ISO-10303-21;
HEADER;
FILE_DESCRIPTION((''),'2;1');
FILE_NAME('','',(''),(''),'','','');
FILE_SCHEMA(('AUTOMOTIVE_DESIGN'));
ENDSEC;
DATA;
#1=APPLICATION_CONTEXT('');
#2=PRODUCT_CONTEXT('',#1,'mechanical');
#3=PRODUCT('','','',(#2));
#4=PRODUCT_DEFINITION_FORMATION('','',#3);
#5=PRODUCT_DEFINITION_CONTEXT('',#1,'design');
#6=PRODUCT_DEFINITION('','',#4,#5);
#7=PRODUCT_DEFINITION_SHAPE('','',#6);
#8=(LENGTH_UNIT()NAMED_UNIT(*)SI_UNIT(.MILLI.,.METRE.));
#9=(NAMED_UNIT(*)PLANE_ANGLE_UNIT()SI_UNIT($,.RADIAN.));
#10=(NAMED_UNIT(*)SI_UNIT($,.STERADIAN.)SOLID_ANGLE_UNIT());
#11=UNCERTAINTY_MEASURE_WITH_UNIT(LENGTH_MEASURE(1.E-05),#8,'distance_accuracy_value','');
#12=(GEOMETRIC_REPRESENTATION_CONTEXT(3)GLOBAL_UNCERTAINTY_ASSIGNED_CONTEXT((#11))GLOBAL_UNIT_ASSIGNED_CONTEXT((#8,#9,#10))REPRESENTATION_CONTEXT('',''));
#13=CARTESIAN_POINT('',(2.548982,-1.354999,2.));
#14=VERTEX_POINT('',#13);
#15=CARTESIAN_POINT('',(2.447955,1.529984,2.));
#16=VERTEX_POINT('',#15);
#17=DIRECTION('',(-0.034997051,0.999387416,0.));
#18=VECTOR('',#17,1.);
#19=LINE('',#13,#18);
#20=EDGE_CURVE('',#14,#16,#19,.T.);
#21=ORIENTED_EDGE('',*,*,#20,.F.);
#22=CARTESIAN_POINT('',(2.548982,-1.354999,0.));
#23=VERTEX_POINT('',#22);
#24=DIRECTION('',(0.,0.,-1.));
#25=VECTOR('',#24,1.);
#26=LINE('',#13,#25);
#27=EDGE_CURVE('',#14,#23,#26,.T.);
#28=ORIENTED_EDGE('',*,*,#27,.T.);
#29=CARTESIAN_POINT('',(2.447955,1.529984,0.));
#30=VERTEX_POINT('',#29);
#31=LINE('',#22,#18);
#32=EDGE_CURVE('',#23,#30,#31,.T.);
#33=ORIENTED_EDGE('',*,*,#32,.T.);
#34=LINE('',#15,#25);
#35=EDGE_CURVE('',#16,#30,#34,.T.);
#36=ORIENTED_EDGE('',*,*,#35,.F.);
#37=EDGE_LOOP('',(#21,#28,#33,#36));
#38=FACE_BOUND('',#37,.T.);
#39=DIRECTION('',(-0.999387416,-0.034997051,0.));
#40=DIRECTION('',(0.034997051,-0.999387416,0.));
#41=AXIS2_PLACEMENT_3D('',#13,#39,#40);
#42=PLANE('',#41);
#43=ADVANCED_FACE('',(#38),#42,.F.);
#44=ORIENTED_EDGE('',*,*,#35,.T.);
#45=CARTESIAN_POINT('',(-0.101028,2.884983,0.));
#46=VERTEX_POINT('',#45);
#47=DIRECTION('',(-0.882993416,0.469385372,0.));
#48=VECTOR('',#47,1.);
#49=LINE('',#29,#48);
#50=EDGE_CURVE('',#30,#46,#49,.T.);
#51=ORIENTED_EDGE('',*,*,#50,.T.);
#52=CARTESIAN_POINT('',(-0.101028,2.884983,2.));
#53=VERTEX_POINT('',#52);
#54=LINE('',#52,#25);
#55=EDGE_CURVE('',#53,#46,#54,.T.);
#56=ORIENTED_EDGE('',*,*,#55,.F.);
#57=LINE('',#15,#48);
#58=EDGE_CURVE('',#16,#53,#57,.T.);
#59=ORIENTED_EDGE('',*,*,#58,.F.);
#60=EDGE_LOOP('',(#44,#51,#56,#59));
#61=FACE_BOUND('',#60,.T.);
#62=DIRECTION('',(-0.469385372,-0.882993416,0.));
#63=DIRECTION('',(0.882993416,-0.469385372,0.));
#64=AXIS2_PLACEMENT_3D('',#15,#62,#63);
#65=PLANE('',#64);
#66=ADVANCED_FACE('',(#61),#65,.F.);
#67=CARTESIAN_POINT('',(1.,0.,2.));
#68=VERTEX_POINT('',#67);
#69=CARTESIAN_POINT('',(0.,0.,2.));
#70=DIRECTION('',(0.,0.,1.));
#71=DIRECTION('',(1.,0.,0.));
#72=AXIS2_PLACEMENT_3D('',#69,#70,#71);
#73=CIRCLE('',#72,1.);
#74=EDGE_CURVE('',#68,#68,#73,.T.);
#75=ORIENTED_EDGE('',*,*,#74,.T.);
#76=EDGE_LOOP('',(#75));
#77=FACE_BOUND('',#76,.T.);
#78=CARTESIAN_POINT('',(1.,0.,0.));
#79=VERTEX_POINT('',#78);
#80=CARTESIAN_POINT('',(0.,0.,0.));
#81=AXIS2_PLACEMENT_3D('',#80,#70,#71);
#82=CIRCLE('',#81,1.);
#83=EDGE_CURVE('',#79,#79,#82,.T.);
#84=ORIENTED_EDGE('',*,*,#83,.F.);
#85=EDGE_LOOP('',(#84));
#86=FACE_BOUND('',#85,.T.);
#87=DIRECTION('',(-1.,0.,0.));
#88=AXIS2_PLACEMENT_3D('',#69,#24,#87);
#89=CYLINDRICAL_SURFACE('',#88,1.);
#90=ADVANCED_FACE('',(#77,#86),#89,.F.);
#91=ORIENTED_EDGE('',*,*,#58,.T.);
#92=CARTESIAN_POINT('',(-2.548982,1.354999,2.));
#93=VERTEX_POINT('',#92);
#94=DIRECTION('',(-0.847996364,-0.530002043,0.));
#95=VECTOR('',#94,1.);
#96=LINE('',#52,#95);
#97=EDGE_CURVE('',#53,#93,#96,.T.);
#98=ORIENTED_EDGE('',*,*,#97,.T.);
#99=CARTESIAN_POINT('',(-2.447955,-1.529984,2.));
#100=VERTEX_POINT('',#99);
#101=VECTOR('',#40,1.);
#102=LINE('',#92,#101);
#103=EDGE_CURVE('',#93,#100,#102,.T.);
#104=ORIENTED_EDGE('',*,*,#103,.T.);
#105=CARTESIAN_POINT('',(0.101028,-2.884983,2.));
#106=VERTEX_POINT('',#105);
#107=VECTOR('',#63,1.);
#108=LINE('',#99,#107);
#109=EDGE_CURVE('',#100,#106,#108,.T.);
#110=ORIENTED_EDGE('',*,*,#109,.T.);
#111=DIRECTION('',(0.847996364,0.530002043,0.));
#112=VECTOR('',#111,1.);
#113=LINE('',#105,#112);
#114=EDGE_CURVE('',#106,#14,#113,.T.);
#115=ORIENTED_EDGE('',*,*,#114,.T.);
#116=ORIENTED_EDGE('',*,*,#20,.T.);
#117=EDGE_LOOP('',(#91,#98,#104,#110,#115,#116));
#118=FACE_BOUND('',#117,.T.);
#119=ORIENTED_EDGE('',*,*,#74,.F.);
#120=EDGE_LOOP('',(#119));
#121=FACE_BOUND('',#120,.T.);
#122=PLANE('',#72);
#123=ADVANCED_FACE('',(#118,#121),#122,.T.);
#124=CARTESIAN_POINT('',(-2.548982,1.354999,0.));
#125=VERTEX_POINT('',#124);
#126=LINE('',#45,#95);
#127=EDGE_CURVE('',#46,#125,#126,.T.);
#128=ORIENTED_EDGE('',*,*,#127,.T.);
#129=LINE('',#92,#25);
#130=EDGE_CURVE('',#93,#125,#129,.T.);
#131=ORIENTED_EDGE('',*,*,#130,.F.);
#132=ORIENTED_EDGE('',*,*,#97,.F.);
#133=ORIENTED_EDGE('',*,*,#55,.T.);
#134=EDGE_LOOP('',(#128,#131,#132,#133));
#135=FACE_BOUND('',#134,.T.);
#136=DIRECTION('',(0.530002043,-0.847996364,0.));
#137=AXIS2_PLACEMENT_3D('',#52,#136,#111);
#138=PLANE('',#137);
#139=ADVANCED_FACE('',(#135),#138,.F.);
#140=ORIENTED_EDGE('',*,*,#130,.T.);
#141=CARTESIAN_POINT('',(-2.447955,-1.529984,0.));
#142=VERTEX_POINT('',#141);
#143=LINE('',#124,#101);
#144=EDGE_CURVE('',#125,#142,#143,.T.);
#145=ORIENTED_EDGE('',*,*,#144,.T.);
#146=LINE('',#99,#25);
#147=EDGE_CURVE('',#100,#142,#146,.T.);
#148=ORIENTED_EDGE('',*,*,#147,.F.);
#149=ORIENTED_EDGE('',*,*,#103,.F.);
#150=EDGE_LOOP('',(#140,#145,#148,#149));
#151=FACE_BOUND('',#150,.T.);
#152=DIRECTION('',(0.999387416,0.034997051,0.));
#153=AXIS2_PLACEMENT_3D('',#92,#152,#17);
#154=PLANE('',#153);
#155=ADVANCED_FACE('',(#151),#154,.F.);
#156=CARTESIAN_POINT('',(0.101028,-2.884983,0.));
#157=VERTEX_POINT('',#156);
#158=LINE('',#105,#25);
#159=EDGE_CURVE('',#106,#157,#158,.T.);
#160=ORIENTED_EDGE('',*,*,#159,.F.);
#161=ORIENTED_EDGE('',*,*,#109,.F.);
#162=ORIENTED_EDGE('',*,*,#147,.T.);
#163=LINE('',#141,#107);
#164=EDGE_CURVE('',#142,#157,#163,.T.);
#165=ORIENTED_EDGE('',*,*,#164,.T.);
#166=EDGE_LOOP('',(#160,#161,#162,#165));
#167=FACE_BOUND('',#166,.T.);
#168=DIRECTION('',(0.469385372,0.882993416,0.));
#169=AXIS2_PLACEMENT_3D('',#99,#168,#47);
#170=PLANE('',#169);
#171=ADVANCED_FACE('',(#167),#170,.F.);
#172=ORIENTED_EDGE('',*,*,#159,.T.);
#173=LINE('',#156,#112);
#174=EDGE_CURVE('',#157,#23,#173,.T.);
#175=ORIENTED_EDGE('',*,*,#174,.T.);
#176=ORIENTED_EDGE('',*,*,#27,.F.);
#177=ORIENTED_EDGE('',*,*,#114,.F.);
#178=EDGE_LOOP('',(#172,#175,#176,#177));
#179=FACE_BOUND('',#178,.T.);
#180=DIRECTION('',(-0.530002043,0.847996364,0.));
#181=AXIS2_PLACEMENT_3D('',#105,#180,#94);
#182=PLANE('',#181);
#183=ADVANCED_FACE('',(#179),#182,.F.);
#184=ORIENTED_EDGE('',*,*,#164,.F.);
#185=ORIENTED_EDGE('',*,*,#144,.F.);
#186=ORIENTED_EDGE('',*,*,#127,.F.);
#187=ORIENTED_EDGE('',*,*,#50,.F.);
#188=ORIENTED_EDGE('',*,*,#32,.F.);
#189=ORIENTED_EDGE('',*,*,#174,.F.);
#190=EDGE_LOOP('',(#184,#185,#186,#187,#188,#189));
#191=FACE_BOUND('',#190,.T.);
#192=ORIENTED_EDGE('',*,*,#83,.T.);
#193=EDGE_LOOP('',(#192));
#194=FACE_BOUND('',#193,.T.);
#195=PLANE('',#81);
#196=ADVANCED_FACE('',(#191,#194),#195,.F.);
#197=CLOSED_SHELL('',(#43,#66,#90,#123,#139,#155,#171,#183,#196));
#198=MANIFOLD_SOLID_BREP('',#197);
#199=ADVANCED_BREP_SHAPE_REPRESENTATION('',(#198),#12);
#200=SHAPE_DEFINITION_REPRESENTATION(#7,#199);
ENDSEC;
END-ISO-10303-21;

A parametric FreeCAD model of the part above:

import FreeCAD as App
import Part
import Sketcher

V = App.Vector


def add_polygon(sketch, points):
    """Adds a closed chain of lines whose ends are joined by coincident constraints."""
    first, n = sketch.GeometryCount, len(points)
    for a, b in zip(points, points[1:] + points[:1]):
        sketch.addGeometry(Part.LineSegment(App.Vector(*a, 0), App.Vector(*b, 0)), False)
    for i in range(n):
        sketch.addConstraint(Sketcher.Constraint("Coincident", first + i, 2, first + (i + 1) % n, 1))

doc = App.newDocument("Part")
body = doc.addObject("PartDesign::Body", "Body")

sketch1 = body.newObject("Sketcher::SketchObject", "Sketch")
sketch1.AttachmentSupport = (doc.getObject("XY_Plane"), [""])
sketch1.MapMode = "FlatFace"
add_polygon(sketch1, [(2.4, 1.5), (-0.1, 2.9), (-2.5, 1.4), (-2.4, -1.5), (0.1, -2.9), (2.5, -1.4)])
sketch1.addGeometry(Part.Circle(V(0, 0, 0), V(0, 0, 1), 1), False)
sketch1.addConstraint(Sketcher.Constraint("Coincident", 6, 3, -1, 1))
sketch1.addConstraint(Sketcher.Constraint("Symmetric", 0, 2, 3, 2, -1, 1))
sketch1.addConstraint(Sketcher.Constraint("Symmetric", 1, 2, 4, 2, -1, 1))
sketch1.addConstraint(Sketcher.Constraint("Symmetric", 2, 2, 5, 2, -1, 1))
sketch1.addConstraint(Sketcher.Constraint("Equal", 0, 1))
sketch1.addConstraint(Sketcher.Constraint("Equal", 1, 2))
sketch1.addConstraint(Sketcher.Constraint("Diameter", 6, 2.0))
sketch1.addConstraint(Sketcher.Constraint("DistanceY", -1, 1, 1, 2, 1.354999))
sketch1.addConstraint(Sketcher.Constraint("DistanceY", 3, 2, 2, 2, 1.354999))
sketch1.addConstraint(Sketcher.Constraint("Distance", 0, 2.886751))
sketch1.addConstraint(Sketcher.Constraint("DistanceX", 1, 2, 3, 2, 2.65001))
pad1 = body.newObject("PartDesign::Pad", "Pad")
pad1.Profile = sketch1
pad1.Length = 2

doc.recompute()
